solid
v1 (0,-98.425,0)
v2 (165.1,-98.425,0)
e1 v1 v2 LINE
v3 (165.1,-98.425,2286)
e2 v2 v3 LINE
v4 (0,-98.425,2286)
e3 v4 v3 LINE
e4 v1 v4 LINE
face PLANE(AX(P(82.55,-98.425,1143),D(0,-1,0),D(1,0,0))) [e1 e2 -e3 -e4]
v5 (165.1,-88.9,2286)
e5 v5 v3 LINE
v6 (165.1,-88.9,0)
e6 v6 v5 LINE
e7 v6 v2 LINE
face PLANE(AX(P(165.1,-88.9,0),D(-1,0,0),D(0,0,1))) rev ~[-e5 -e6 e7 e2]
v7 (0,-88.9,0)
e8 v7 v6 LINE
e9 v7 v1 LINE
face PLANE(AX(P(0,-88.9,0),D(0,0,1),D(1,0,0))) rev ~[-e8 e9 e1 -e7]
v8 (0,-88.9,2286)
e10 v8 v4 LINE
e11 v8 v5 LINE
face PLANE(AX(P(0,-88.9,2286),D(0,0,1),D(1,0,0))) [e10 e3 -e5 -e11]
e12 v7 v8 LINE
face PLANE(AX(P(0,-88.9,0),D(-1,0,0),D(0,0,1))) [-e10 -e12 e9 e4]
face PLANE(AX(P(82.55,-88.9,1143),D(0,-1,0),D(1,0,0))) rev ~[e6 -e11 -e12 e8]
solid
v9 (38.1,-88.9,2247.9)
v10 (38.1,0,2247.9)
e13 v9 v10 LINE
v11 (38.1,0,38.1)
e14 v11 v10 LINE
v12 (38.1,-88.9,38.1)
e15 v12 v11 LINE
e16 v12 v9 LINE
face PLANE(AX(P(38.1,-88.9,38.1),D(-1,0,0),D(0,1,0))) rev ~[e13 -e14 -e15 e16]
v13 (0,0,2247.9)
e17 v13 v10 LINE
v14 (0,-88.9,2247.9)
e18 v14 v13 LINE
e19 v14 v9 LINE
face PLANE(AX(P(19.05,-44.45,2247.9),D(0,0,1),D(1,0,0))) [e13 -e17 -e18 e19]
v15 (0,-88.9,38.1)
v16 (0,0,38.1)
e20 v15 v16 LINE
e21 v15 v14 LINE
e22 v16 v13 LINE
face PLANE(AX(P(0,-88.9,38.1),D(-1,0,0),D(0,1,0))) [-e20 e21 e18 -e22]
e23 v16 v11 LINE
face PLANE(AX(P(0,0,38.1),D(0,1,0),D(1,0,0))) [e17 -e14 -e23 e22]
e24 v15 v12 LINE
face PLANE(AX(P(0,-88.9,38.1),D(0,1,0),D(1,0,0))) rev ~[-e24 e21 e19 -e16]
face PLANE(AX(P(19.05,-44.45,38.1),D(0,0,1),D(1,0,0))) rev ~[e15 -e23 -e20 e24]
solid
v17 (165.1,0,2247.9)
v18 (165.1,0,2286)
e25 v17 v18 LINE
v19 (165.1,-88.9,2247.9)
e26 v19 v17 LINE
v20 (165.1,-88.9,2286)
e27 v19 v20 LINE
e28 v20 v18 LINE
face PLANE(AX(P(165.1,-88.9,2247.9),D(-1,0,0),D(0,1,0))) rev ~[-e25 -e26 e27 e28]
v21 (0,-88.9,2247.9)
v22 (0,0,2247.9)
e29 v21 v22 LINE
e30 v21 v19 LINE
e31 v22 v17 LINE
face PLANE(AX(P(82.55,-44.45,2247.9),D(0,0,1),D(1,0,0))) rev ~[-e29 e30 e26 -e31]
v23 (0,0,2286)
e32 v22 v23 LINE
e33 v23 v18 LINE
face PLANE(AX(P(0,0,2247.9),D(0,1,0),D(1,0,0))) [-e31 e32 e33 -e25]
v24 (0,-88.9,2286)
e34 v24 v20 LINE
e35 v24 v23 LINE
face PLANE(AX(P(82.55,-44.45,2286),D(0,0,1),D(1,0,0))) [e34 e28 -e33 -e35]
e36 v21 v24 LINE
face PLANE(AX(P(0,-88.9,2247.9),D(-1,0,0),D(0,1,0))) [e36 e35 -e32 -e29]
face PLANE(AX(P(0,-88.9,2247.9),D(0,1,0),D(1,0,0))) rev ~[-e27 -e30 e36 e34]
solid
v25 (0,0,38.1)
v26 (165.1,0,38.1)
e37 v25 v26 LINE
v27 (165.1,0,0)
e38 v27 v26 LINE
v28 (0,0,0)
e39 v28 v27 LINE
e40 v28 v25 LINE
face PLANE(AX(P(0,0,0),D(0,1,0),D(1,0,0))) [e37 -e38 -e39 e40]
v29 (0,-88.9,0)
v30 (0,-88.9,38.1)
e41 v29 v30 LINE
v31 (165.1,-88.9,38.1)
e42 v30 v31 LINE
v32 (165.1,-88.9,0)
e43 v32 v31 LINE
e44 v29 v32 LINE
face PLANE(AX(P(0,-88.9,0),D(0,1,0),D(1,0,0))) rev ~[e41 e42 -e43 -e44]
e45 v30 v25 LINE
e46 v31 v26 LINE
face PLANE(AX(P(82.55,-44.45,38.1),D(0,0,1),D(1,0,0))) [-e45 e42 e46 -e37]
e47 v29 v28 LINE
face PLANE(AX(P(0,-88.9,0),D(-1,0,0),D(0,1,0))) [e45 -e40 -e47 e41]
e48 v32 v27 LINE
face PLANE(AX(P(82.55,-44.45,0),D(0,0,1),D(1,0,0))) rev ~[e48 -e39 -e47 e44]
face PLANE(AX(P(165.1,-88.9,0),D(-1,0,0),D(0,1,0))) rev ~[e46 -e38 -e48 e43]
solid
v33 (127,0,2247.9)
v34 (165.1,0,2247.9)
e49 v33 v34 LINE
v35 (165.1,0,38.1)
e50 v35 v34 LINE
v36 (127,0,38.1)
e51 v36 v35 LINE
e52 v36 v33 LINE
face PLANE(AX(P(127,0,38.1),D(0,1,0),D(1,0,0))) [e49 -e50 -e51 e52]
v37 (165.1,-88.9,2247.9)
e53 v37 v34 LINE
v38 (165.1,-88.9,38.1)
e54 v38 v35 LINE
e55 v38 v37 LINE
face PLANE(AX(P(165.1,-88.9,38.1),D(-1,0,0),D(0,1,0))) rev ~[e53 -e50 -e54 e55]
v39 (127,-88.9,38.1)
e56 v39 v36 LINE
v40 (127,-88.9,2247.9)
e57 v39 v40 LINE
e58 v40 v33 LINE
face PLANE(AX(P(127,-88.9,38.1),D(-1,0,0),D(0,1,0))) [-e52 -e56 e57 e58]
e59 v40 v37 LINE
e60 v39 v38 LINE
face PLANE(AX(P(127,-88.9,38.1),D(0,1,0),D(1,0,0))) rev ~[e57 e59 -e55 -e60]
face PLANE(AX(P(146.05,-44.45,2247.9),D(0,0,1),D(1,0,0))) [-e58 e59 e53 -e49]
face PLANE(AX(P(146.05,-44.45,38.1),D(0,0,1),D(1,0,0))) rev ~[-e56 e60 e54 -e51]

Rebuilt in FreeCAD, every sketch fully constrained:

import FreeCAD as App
import Part
import Sketcher
from FreeCAD import Vector
Q = App.Units.Quantity

doc = App.newDocument("Part")
body = doc.addObject("PartDesign::Body", "Body")

sketch1 = doc.addObject("Sketcher::SketchObject", "Sketch")
body.addObject(sketch1)
sketch1.AttachmentSupport = (doc.XY_Plane, [""])
sketch1.MapMode = "FlatFace"
sketch1.addGeometry(Part.LineSegment(Vector(0, 0, 0), Vector(0, -89, 0)), False)
sketch1.addGeometry(Part.LineSegment(Vector(0, -89, 0), Vector(165, -89, 0)), False)
sketch1.addGeometry(Part.LineSegment(Vector(165, -89, 0), Vector(165, 0, 0)), False)
sketch1.addGeometry(Part.LineSegment(Vector(165, 0, 0), Vector(0, 0, 0)), False)
sketch1.addConstraint(Sketcher.Constraint("Coincident", 0, 2, 1, 1))
sketch1.addConstraint(Sketcher.Constraint("Coincident", 1, 2, 2, 1))
sketch1.addConstraint(Sketcher.Constraint("Coincident", 2, 2, 3, 1))
sketch1.addConstraint(Sketcher.Constraint("Coincident", 3, 2, 0, 1))
sketch1.addConstraint(Sketcher.Constraint("Vertical", 0))
sketch1.addConstraint(Sketcher.Constraint("Horizontal", 1))
sketch1.addConstraint(Sketcher.Constraint("Vertical", 2))
sketch1.addConstraint(Sketcher.Constraint("Horizontal", 3))
sketch1.addConstraint(Sketcher.Constraint("Coincident", 3, 2, -1, 1))
sketch1.addConstraint(Sketcher.Constraint("DistanceX", 1, 1, 1, 2, Q("6.5 in")))
sketch1.addConstraint(Sketcher.Constraint("DistanceY", 0, 2, 0, 1, Q("3.5 in")))
pad1 = doc.addObject("PartDesign::Pad", "Pad")
body.addObject(pad1)
pad1.Profile = sketch1
pad1.Length = Q("1.5 in")
body2 = doc.addObject("PartDesign::Body", "Body001")

sketch2 = doc.addObject("Sketcher::SketchObject", "Sketch001")
body2.addObject(sketch2)
sketch2.AttachmentSupport = (doc.getObject("XY_Plane001"), [""])
sketch2.MapMode = "FlatFace"
sketch2.AttachmentOffset = App.Placement(Vector(0, 0, 1.5 * 25.4), App.Rotation())
sketch2.addGeometry(Part.LineSegment(Vector(0, 0, 0), Vector(0, -89, 0)), False)
sketch2.addGeometry(Part.LineSegment(Vector(0, -89, 0), Vector(38, -89, 0)), False)
sketch2.addGeometry(Part.LineSegment(Vector(38, -89, 0), Vector(38, 0, 0)), False)
sketch2.addGeometry(Part.LineSegment(Vector(38, 0, 0), Vector(0, 0, 0)), False)
sketch2.addConstraint(Sketcher.Constraint("Coincident", 0, 2, 1, 1))
sketch2.addConstraint(Sketcher.Constraint("Coincident", 1, 2, 2, 1))
sketch2.addConstraint(Sketcher.Constraint("Coincident", 2, 2, 3, 1))
sketch2.addConstraint(Sketcher.Constraint("Coincident", 3, 2, 0, 1))
sketch2.addConstraint(Sketcher.Constraint("Vertical", 0))
sketch2.addConstraint(Sketcher.Constraint("Horizontal", 1))
sketch2.addConstraint(Sketcher.Constraint("Vertical", 2))
sketch2.addConstraint(Sketcher.Constraint("Horizontal", 3))
sketch2.addConstraint(Sketcher.Constraint("Coincident", 3, 2, -1, 1))
sketch2.addConstraint(Sketcher.Constraint("DistanceX", 1, 1, 1, 2, Q("1.5 in")))
sketch2.addConstraint(Sketcher.Constraint("DistanceY", 0, 2, 0, 1, Q("3.5 in")))
pad2 = doc.addObject("PartDesign::Pad", "Pad001")
body2.addObject(pad2)
pad2.Profile = sketch2
pad2.Length = Q("87 in")
body3 = doc.addObject("PartDesign::Body", "Body002")

sketch3 = doc.addObject("Sketcher::SketchObject", "Sketch002")
body3.addObject(sketch3)
sketch3.AttachmentSupport = (doc.getObject("XY_Plane002"), [""])
sketch3.MapMode = "FlatFace"
sketch3.AttachmentOffset = App.Placement(Vector(0, 0, 1.5 * 25.4), App.Rotation())
sketch3.addGeometry(Part.LineSegment(Vector(127, 0, 0), Vector(127, -89, 0)), False)
sketch3.addGeometry(Part.LineSegment(Vector(127, -89, 0), Vector(165, -89, 0)), False)
sketch3.addGeometry(Part.LineSegment(Vector(165, -89, 0), Vector(165, 0, 0)), False)
sketch3.addGeometry(Part.LineSegment(Vector(165, 0, 0), Vector(127, 0, 0)), False)
sketch3.addConstraint(Sketcher.Constraint("Coincident", 0, 2, 1, 1))
sketch3.addConstraint(Sketcher.Constraint("Coincident", 1, 2, 2, 1))
sketch3.addConstraint(Sketcher.Constraint("Coincident", 2, 2, 3, 1))
sketch3.addConstraint(Sketcher.Constraint("Coincident", 3, 2, 0, 1))
sketch3.addConstraint(Sketcher.Constraint("Vertical", 0))
sketch3.addConstraint(Sketcher.Constraint("Horizontal", 1))
sketch3.addConstraint(Sketcher.Constraint("Vertical", 2))
sketch3.addConstraint(Sketcher.Constraint("Horizontal", 3))
sketch3.addConstraint(Sketcher.Constraint("PointOnObject", 2, 2, -1))
sketch3.addConstraint(Sketcher.Constraint("DistanceX", 1, 1, 1, 2, Q("1.5 in")))
sketch3.addConstraint(Sketcher.Constraint("DistanceY", 0, 2, 0, 1, Q("3.5 in")))
sketch3.addConstraint(Sketcher.Constraint("DistanceX", -1, 1, 0, 2, Q("5 in")))
pad3 = doc.addObject("PartDesign::Pad", "Pad002")
body3.addObject(pad3)
pad3.Profile = sketch3
pad3.Length = Q("87 in")
body4 = doc.addObject("PartDesign::Body", "Body003")

sketch4 = doc.addObject("Sketcher::SketchObject", "Sketch003")
body4.addObject(sketch4)
sketch4.AttachmentSupport = (doc.getObject("XY_Plane003"), [""])
sketch4.MapMode = "FlatFace"
sketch4.AttachmentOffset = App.Placement(Vector(0, 0, 88.5 * 25.4), App.Rotation())
sketch4.addGeometry(Part.LineSegment(Vector(0, 0, 0), Vector(0, -89, 0)), False)
sketch4.addGeometry(Part.LineSegment(Vector(0, -89, 0), Vector(165, -89, 0)), False)
sketch4.addGeometry(Part.LineSegment(Vector(165, -89, 0), Vector(165, 0, 0)), False)
sketch4.addGeometry(Part.LineSegment(Vector(165, 0, 0), Vector(0, 0, 0)), False)
sketch4.addConstraint(Sketcher.Constraint("Coincident", 0, 2, 1, 1))
sketch4.addConstraint(Sketcher.Constraint("Coincident", 1, 2, 2, 1))
sketch4.addConstraint(Sketcher.Constraint("Coincident", 2, 2, 3, 1))
sketch4.addConstraint(Sketcher.Constraint("Coincident", 3, 2, 0, 1))
sketch4.addConstraint(Sketcher.Constraint("Vertical", 0))
sketch4.addConstraint(Sketcher.Constraint("Horizontal", 1))
sketch4.addConstraint(Sketcher.Constraint("Vertical", 2))
sketch4.addConstraint(Sketcher.Constraint("Horizontal", 3))
sketch4.addConstraint(Sketcher.Constraint("Coincident", 3, 2, -1, 1))
sketch4.addConstraint(Sketcher.Constraint("DistanceX", 1, 1, 1, 2, Q("6.5 in")))
sketch4.addConstraint(Sketcher.Constraint("DistanceY", 0, 2, 0, 1, Q("3.5 in")))
pad4 = doc.addObject("PartDesign::Pad", "Pad003")
body4.addObject(pad4)
pad4.Profile = sketch4
pad4.Length = Q("1.5 in")
body5 = doc.addObject("PartDesign::Body", "Body004")

sketch5 = doc.addObject("Sketcher::SketchObject", "Sketch004")
body5.addObject(sketch5)
sketch5.AttachmentSupport = (doc.getObject("XZ_Plane004"), [""])
sketch5.MapMode = "FlatFace"
sketch5.AttachmentOffset = App.Placement(Vector(0, 0, 3.5 * 25.4), App.Rotation())
sketch5.addGeometry(Part.LineSegment(Vector(0, 2286, 0), Vector(0, 0, 0)), False)
sketch5.addGeometry(Part.LineSegment(Vector(0, 0, 0), Vector(165, 0, 0)), False)
sketch5.addGeometry(Part.LineSegment(Vector(165, 0, 0), Vector(165, 2286, 0)), False)
sketch5.addGeometry(Part.LineSegment(Vector(165, 2286, 0), Vector(0, 2286, 0)), False)
sketch5.addConstraint(Sketcher.Constraint("Coincident", 0, 2, 1, 1))
sketch5.addConstraint(Sketcher.Constraint("Coincident", 1, 2, 2, 1))
sketch5.addConstraint(Sketcher.Constraint("Coincident", 2, 2, 3, 1))
sketch5.addConstraint(Sketcher.Constraint("Coincident", 3, 2, 0, 1))
sketch5.addConstraint(Sketcher.Constraint("Vertical", 0))
sketch5.addConstraint(Sketcher.Constraint("Horizontal", 1))
sketch5.addConstraint(Sketcher.Constraint("Vertical", 2))
sketch5.addConstraint(Sketcher.Constraint("Horizontal", 3))
sketch5.addConstraint(Sketcher.Constraint("Coincident", 0, 2, -1, 1))
sketch5.addConstraint(Sketcher.Constraint("DistanceY", 0, 2, 0, 1, Q("90 in")))
sketch5.addConstraint(Sketcher.Constraint("DistanceX", 1, 1, 1, 2, Q("6.5 in")))
pad5 = doc.addObject("PartDesign::Pad", "Pad004")
body5.addObject(pad5)
pad5.Profile = sketch5
pad5.Length = Q("0.375 in")

doc.recompute()
